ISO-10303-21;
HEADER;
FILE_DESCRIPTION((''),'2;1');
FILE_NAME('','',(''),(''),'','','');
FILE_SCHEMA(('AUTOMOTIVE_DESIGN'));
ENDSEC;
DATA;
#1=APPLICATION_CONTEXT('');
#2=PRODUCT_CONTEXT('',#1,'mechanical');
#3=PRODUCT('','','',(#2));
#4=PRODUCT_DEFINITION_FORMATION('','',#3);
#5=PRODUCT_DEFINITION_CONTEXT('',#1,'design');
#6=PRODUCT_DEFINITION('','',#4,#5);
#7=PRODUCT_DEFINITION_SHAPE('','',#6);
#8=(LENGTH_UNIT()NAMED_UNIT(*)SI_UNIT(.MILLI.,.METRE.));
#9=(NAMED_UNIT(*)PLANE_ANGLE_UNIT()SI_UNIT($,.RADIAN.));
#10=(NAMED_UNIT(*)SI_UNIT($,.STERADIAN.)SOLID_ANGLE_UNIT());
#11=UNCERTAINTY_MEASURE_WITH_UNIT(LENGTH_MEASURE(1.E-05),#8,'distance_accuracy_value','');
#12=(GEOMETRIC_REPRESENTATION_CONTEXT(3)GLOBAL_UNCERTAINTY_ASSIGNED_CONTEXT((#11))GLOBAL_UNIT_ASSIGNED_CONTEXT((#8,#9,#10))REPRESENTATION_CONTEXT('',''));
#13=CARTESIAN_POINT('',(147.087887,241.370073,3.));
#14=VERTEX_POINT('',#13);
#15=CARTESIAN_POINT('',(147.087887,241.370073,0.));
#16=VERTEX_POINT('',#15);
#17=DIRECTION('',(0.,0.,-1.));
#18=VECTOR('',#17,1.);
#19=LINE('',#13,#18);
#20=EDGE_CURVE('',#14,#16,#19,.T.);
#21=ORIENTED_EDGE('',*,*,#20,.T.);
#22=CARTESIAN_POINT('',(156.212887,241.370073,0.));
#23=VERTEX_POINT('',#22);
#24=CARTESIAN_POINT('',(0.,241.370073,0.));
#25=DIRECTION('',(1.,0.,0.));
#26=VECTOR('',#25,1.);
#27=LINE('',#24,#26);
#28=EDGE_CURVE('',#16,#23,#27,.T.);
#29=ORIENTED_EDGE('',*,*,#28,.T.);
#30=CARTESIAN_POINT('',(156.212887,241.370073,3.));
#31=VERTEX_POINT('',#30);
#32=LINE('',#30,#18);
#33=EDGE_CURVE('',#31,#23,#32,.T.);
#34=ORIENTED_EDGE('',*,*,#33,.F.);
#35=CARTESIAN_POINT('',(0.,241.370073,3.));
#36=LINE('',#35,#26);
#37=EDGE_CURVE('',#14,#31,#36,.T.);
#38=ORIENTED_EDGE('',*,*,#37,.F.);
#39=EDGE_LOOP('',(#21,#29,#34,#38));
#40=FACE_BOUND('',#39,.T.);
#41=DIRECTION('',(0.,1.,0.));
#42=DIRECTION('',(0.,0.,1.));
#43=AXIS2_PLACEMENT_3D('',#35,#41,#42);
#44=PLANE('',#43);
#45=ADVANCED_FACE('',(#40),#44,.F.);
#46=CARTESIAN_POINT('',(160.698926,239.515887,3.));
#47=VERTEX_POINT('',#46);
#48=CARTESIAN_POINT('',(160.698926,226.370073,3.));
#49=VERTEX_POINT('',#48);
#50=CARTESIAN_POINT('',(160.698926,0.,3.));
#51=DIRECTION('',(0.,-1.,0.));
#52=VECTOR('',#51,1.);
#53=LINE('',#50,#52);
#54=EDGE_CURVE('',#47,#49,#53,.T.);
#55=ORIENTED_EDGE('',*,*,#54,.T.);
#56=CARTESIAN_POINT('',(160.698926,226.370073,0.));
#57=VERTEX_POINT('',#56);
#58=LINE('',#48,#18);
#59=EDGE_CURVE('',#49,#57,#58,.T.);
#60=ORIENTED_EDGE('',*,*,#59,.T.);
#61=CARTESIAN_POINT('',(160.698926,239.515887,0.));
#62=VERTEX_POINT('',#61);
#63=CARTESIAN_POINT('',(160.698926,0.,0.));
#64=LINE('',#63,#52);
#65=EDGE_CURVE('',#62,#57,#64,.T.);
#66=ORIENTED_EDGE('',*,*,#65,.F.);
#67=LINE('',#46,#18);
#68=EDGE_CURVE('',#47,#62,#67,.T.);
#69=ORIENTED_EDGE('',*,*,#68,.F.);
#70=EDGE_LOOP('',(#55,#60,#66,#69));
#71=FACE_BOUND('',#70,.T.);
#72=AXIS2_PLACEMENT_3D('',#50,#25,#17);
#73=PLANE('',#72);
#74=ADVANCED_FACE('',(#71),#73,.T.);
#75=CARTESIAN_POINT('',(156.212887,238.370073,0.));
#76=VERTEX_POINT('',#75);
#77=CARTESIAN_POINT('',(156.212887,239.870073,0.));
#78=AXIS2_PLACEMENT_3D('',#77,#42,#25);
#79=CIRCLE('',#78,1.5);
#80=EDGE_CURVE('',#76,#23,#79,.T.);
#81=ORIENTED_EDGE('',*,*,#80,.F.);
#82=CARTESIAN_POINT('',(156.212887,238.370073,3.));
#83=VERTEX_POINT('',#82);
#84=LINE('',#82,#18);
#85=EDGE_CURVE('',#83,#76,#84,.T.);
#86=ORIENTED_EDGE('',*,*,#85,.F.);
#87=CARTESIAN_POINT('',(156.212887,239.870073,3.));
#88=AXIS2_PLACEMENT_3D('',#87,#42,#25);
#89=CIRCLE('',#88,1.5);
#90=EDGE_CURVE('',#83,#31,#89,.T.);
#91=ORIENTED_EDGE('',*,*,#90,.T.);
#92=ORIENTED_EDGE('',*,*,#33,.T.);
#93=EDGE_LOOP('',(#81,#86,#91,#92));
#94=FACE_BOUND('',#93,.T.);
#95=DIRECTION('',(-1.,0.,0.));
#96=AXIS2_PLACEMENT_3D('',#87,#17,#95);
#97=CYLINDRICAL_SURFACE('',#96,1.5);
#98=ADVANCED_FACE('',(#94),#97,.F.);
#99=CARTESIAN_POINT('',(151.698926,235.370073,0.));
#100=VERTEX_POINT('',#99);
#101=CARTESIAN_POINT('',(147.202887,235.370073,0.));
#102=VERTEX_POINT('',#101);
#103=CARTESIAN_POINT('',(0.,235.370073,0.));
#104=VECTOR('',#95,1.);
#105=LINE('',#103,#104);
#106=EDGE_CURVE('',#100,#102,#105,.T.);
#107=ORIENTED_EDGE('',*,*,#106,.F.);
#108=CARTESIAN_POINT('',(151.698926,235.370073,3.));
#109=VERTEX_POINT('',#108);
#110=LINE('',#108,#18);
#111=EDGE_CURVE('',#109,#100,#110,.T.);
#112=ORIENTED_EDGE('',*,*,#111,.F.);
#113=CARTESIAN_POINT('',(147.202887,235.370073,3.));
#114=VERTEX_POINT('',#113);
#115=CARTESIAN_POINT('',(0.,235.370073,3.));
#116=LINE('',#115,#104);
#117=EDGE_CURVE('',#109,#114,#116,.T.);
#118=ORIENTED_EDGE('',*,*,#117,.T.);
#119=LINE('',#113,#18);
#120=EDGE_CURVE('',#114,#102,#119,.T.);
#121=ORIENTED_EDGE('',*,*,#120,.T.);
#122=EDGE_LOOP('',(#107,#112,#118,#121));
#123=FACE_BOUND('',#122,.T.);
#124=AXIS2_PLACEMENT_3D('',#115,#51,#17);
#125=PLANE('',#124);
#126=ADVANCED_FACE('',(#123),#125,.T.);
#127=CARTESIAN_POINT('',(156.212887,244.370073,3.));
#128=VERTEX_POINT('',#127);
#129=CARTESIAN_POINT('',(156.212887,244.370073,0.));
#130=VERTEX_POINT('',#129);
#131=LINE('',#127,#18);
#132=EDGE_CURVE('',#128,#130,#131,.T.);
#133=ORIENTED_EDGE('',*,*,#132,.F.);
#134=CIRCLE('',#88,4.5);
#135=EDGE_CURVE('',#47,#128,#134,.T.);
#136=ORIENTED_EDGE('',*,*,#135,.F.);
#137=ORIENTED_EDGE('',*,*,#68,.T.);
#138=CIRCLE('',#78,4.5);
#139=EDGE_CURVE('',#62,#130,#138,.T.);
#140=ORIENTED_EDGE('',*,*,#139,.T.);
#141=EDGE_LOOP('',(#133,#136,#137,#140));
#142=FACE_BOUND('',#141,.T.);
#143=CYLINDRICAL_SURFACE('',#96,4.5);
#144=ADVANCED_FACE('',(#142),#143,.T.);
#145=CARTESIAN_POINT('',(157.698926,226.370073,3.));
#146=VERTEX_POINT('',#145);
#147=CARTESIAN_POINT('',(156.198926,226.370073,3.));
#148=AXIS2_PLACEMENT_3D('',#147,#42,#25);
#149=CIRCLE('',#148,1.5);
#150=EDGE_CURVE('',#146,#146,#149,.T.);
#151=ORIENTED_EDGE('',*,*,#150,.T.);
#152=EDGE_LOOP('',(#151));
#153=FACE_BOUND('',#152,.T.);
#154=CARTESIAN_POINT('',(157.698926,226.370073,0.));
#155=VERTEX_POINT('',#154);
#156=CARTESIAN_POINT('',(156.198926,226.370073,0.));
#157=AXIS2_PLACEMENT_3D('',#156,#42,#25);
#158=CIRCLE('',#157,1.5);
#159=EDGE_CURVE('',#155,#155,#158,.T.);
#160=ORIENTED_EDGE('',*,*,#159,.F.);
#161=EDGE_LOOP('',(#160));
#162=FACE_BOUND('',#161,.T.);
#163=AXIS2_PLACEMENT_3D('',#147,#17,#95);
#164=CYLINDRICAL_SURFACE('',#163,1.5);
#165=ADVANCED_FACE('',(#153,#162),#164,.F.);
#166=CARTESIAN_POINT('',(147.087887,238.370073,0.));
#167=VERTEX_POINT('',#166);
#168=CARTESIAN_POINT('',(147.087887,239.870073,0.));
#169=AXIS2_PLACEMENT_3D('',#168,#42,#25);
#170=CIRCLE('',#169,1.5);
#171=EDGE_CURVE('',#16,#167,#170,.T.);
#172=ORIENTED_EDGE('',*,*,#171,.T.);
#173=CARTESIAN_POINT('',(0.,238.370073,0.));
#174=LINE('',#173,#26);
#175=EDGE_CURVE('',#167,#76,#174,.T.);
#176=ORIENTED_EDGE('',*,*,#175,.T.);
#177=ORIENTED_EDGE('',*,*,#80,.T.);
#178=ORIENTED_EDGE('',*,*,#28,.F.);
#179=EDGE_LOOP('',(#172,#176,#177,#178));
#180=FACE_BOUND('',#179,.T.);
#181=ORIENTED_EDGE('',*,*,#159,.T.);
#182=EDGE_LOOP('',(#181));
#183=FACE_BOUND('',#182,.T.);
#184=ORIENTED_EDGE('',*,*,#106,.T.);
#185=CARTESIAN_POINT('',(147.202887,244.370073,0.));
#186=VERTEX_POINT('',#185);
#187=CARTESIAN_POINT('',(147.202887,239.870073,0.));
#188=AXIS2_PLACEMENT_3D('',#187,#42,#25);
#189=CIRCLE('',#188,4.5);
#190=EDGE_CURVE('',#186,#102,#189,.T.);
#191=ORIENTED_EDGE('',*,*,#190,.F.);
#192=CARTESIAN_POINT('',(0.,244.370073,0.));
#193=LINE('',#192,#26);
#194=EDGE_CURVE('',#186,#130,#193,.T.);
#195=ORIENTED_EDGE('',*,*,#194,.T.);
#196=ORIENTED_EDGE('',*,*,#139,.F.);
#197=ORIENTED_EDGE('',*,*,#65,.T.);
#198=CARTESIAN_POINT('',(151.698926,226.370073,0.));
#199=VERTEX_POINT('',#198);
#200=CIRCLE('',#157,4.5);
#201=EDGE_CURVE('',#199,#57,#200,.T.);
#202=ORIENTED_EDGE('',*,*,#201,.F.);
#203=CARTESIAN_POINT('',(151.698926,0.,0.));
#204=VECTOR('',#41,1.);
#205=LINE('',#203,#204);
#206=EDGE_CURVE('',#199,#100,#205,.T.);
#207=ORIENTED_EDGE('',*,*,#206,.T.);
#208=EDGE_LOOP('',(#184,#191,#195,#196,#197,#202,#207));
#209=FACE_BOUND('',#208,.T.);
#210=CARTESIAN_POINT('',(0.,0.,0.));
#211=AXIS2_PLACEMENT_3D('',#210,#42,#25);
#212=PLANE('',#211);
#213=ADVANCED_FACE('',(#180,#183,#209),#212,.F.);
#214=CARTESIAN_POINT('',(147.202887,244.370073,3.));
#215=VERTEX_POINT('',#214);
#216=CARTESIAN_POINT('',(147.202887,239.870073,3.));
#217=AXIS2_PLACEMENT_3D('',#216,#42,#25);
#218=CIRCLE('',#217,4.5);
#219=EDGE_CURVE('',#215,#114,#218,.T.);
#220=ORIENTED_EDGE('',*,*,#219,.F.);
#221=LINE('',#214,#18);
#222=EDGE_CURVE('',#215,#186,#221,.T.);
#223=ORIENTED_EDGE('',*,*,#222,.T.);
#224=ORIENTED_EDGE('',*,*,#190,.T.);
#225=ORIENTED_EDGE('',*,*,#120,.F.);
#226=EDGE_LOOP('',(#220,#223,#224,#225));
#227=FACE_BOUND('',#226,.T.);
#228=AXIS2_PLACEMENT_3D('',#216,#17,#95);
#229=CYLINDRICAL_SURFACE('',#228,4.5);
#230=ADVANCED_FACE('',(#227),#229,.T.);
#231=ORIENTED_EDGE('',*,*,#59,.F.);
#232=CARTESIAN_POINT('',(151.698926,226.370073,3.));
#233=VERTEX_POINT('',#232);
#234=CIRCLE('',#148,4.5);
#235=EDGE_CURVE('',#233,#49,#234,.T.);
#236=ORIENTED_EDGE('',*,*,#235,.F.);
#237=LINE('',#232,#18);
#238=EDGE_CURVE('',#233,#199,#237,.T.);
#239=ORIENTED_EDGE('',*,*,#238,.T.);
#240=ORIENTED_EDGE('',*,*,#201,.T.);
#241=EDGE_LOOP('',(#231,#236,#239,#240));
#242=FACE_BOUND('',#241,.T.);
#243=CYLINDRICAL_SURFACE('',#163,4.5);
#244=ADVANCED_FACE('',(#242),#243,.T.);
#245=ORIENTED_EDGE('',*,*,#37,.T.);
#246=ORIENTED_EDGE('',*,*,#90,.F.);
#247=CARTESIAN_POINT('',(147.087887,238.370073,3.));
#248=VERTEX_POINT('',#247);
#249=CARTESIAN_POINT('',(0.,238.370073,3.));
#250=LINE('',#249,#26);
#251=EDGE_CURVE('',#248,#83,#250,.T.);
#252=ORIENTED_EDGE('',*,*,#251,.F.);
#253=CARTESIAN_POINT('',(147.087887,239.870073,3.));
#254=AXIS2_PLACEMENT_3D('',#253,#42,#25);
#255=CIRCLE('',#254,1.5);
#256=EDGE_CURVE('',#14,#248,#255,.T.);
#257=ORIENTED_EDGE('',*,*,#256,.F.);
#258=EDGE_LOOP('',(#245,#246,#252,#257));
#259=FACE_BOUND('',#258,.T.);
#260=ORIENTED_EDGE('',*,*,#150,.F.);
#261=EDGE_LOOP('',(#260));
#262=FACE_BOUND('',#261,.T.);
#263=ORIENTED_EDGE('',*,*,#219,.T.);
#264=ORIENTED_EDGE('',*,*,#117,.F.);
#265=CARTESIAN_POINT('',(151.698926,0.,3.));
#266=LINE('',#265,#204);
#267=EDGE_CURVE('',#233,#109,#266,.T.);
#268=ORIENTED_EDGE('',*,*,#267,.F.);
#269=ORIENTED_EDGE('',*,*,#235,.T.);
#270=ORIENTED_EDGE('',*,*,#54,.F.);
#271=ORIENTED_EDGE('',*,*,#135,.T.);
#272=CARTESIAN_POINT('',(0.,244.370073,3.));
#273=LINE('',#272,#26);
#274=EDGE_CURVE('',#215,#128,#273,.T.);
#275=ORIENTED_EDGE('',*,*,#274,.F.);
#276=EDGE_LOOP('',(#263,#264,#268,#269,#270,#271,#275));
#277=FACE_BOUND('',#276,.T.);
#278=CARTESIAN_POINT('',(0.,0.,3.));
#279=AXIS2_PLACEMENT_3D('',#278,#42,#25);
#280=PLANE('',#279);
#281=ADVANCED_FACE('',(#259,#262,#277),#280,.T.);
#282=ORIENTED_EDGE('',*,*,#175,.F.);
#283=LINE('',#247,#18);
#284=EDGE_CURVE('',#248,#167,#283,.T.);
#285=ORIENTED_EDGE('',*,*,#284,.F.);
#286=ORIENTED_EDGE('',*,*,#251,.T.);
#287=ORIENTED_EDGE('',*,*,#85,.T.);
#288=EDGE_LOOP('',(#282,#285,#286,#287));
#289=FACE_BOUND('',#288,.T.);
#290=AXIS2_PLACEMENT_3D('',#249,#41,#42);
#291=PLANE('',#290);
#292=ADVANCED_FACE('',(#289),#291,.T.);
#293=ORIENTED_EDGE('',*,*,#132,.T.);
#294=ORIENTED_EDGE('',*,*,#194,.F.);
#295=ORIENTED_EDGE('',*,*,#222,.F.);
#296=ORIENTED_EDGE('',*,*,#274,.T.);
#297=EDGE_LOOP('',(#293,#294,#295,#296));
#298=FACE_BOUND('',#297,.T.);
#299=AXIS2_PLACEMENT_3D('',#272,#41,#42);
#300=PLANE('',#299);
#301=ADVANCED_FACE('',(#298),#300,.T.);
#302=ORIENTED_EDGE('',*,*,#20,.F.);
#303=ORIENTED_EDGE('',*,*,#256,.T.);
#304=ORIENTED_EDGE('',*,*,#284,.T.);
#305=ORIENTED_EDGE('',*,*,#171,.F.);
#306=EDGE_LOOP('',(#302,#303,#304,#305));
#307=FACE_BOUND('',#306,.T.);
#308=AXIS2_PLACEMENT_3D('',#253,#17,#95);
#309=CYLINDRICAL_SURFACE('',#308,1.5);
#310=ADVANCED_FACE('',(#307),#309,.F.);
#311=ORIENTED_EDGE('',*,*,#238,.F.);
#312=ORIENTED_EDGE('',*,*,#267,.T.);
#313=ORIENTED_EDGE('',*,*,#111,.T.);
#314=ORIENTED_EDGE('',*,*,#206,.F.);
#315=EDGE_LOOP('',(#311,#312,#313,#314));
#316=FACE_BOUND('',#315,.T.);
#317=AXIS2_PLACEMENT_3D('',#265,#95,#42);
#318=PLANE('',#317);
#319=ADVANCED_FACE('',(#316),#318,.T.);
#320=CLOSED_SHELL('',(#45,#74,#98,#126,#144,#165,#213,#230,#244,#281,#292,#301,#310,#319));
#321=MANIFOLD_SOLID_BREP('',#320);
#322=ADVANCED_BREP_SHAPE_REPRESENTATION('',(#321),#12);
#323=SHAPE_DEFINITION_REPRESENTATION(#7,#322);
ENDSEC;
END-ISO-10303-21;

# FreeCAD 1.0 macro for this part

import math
import FreeCAD as App
import Part
import Sketcher

V = App.Vector

doc = App.newDocument("Part")
body = doc.addObject("PartDesign::Body", "Body")

sketch1 = body.newObject("Sketcher::SketchObject", "Sketch")
sketch1.AttachmentSupport = (doc.getObject("XY_Plane"), [""])
sketch1.MapMode = "FlatFace"
sketch1.addGeometry(Part.LineSegment(V(160.698926, 226.370073, 0), V(160.698926, 239.515887, 0)), False)
sketch1.addGeometry(Part.ArcOfCircle(Part.Circle(V(156.212887, 239.870073, 0), V(0, 0, 1), 4.5), math.radians(-4.514312), math.radians(90)), False)
sketch1.addGeometry(Part.LineSegment(V(156.212887, 244.370073, 0), V(147.202887, 244.370073, 0)), False)
sketch1.addGeometry(Part.ArcOfCircle(Part.Circle(V(147.202887, 239.870073, 0), V(0, 0, 1), 4.5), math.radians(90), math.radians(270)), False)
sketch1.addGeometry(Part.LineSegment(V(147.202887, 235.370073, 0), V(151.698926, 235.370073, 0)), False)
sketch1.addGeometry(Part.LineSegment(V(151.698926, 235.370073, 0), V(151.698926, 226.370073, 0)), False)
sketch1.addGeometry(Part.ArcOfCircle(Part.Circle(V(156.198926, 226.370073, 0), V(0, 0, 1), 4.5), math.radians(180), math.radians(360)), False)
sketch1.addGeometry(Part.Circle(V(156.198926, 226.370073, 0), V(0, 0, 1), 1.5), False)
sketch1.addGeometry(Part.LineSegment(V(156.212887, 238.370073, 0), V(147.087887, 238.370073, 0)), False)
sketch1.addGeometry(Part.ArcOfCircle(Part.Circle(V(147.087887, 239.870073, 0), V(0, 0, 1), 1.5), math.radians(90), math.radians(270)), False)
sketch1.addGeometry(Part.LineSegment(V(147.087887, 241.370073, 0), V(156.212887, 241.370073, 0)), False)
sketch1.addGeometry(Part.ArcOfCircle(Part.Circle(V(156.212887, 239.870073, 0), V(0, 0, 1), 1.5), math.radians(-90), math.radians(90)), False)
sketch1.addConstraint(Sketcher.Constraint("Coincident", 0, 2, 1, 1))
sketch1.addConstraint(Sketcher.Constraint("Tangent", 1, 2, 2, 1))
sketch1.addConstraint(Sketcher.Constraint("Tangent", 2, 2, 3, 1))
sketch1.addConstraint(Sketcher.Constraint("Tangent", 3, 2, 4, 1))
sketch1.addConstraint(Sketcher.Constraint("Coincident", 4, 2, 5, 1))
sketch1.addConstraint(Sketcher.Constraint("Tangent", 5, 2, 6, 1))
sketch1.addConstraint(Sketcher.Constraint("Tangent", 6, 2, 0, 1))
sketch1.addConstraint(Sketcher.Constraint("Tangent", 8, 2, 9, 2))
sketch1.addConstraint(Sketcher.Constraint("Tangent", 9, 1, 10, 1))
sketch1.addConstraint(Sketcher.Constraint("Tangent", 10, 2, 11, 2))
sketch1.addConstraint(Sketcher.Constraint("Tangent", 11, 1, 8, 1))
sketch1.addConstraint(Sketcher.Constraint("Vertical", 0))
sketch1.addConstraint(Sketcher.Constraint("Horizontal", 2))
sketch1.addConstraint(Sketcher.Constraint("Horizontal", 4))
sketch1.addConstraint(Sketcher.Constraint("Vertical", 5))
sketch1.addConstraint(Sketcher.Constraint("Horizontal", 8))
sketch1.addConstraint(Sketcher.Constraint("Horizontal", 10))
sketch1.addConstraint(Sketcher.Constraint("Coincident", 7, 3, 6, 3))
sketch1.addConstraint(Sketcher.Constraint("Coincident", 11, 3, 1, 3))
sketch1.addConstraint(Sketcher.Constraint("Equal", 1, 3))
sketch1.addConstraint(Sketcher.Constraint("Equal", 3, 6))
sketch1.addConstraint(Sketcher.Constraint("Equal", 7, 9))
sketch1.addConstraint(Sketcher.Constraint("Diameter", 7, 3.0))
sketch1.addConstraint(Sketcher.Constraint("Radius", 1, 4.5))
sketch1.addConstraint(Sketcher.Constraint("DistanceY", 5, 2, 5, 1, 9.0))
sketch1.addConstraint(Sketcher.Constraint("DistanceX", 2, 2, 2, 1, 9.01))
sketch1.addConstraint(Sketcher.Constraint("DistanceX", 8, 2, 8, 1, 9.125))
sketch1.addConstraint(Sketcher.Constraint("DistanceX", 4, 1, 4, 2, 4.49604))
sketch1.addConstraint(Sketcher.Constraint("DistanceX", -1, 1, 1, 3, 156.212887))
sketch1.addConstraint(Sketcher.Constraint("DistanceY", -1, 1, 1, 3, 239.870073))
pad1 = body.newObject("PartDesign::Pad", "Pad")
pad1.Profile = sketch1
pad1.Length = 3

doc.recompute()
